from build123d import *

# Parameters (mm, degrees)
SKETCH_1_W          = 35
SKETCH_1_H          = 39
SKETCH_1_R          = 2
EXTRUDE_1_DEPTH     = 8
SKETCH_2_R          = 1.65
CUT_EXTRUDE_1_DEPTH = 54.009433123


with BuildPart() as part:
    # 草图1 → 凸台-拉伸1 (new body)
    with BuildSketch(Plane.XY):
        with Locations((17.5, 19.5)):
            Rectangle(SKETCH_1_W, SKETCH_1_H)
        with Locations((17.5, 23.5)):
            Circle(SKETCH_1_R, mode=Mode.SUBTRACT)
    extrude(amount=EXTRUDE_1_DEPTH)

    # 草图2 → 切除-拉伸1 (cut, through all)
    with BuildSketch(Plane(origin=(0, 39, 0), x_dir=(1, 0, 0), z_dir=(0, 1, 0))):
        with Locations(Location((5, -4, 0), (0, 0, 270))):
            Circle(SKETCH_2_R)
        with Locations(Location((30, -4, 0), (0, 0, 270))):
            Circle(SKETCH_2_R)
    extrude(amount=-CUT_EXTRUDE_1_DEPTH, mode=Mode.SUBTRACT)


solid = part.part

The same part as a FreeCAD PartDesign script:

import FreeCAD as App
import Part
import Sketcher

V = App.Vector

doc = App.newDocument("Part")
params = doc.addObject("Spreadsheet::Sheet", "Params")
for row, (alias, value) in enumerate([
    ("sketch1_diameter", "4 mm"),
    ("sketch1_width", "35 mm"),
    ("sketch1_height", "39 mm"),
    ("pad1_length", "8 mm"),
    ("sketch2_diameter", "3.3 mm"),
], start=1):
    params.set(f"A{row}", alias)
    params.set(f"B{row}", "=" + value)
    params.setAlias(f"B{row}", alias)

body = doc.addObject("PartDesign::Body", "Body")

# Sketch on XY plane
sketch1 = doc.addObject("Sketcher::SketchObject", "Sketch")
body.addObject(sketch1)
sketch1.AttachmentSupport = (doc.XY_Plane, [""])
sketch1.MapMode = "FlatFace"
sketch1.addGeometry([
    Part.LineSegment(V(0, 39, 0), V(0, 0, 0)),  # 0
    Part.LineSegment(V(0, 0, 0), V(35, 0, 0)),  # 1
    Part.LineSegment(V(35, 0, 0), V(35, 39, 0)),  # 2
    Part.LineSegment(V(35, 39, 0), V(0, 39, 0)),  # 3
    Part.Circle(V(17.5, 23.5, 0), V(0, 0, 1), 2),  # 4
], False)
sketch1.addConstraint([
    Sketcher.Constraint("Coincident", 0, 2, 1, 1),
    Sketcher.Constraint("Coincident", 1, 2, 2, 1),
    Sketcher.Constraint("Coincident", 2, 2, 3, 1),
    Sketcher.Constraint("Coincident", 3, 2, 0, 1),
    Sketcher.Constraint("Vertical", 0),
    Sketcher.Constraint("Horizontal", 1),
    Sketcher.Constraint("Vertical", 2),
    Sketcher.Constraint("Horizontal", 3),
    Sketcher.Constraint("Coincident", 0, 2, -1, 1),
    Sketcher.Constraint("Diameter", 4, 4.0),
    Sketcher.Constraint("DistanceX", 1, 1, 1, 2, 35.0),
    Sketcher.Constraint("DistanceY", 0, 2, 0, 1, 39.0),
    Sketcher.Constraint("DistanceX", -1, 1, 4, 3, 17.5),
    Sketcher.Constraint("DistanceY", -1, 1, 4, 3, 23.5),
])
sketch1.setExpression("Constraints[9]", "Params.sketch1_diameter")
sketch1.setExpression("Constraints[10]", "Params.sketch1_width")
sketch1.setExpression("Constraints[11]", "Params.sketch1_height")
pad1 = doc.addObject("PartDesign::Pad", "Pad")
body.addObject(pad1)
pad1.Profile = sketch1
pad1.setExpression("Length", "Params.pad1_length")

# Sketch on XZ plane
sketch2 = doc.addObject("Sketcher::SketchObject", "Sketch001")
body.addObject(sketch2)
sketch2.AttachmentSupport = (doc.XZ_Plane, [""])
sketch2.MapMode = "FlatFace"
sketch2.AttachmentOffset = App.Placement(V(0, 0, -39), App.Rotation())
sketch2.addGeometry([
    Part.Circle(V(5, 4, 0), V(0, 0, 1), 1.6),
    Part.Circle(V(30, 4, 0), V(0, 0, 1), 1.6),
], False)
sketch2.addConstraint([
    Sketcher.Constraint("Equal", 0, 1),
    Sketcher.Constraint("Horizontal", 0, 3, 1, 3),
    Sketcher.Constraint("Diameter", 0, 3.3),
    Sketcher.Constraint("DistanceX", -1, 1, 0, 3, 5.0),
    Sketcher.Constraint("DistanceY", -1, 1, 0, 3, 4.0),
    Sketcher.Constraint("DistanceX", -1, 1, 1, 3, 30.0),
])
sketch2.setExpression("Constraints[2]", "Params.sketch2_diameter")
pocket1 = doc.addObject("PartDesign::Pocket", "Pocket")
body.addObject(pocket1)
pocket1.Profile = sketch2
pocket1.Type = "ThroughAll"
pocket1.Reversed = True

doc.recompute()
